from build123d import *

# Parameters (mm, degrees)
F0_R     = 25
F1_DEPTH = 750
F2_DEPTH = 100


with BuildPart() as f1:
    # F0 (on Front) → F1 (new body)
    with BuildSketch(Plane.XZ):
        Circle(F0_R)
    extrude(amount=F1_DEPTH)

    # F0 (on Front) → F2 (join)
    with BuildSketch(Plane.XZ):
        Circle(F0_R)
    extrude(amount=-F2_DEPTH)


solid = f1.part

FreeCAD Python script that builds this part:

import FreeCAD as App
import Part
import Sketcher
from FreeCAD import Vector

doc = App.newDocument("Part")
body = doc.addObject("PartDesign::Body", "Body")

# Sketch on XZ plane
sketch1 = body.newObject("Sketcher::SketchObject", "Sketch")
sketch1.AttachmentSupport = (doc.getObject("XZ_Plane"), [""])
sketch1.MapMode = "FlatFace"
sketch1.addGeometry(Part.Circle(Vector(0, 0, 0), Vector(0, 0, 1), 25), False)
sketch1.addConstraint([
    Sketcher.Constraint("Coincident", 0, 3, -1, 1),
    Sketcher.Constraint("Diameter", 0, 50.0),
])
pad1 = body.newObject("PartDesign::Pad", "Pad")
pad1.Profile = sketch1
pad1.Length = 750

# Sketch on XZ plane
sketch2 = body.newObject("Sketcher::SketchObject", "Sketch001")
sketch2.AttachmentSupport = (doc.getObject("XZ_Plane"), [""])
sketch2.MapMode = "FlatFace"
sketch2.addGeometry(Part.Circle(Vector(0, 0, 0), Vector(0, 0, 1), 25), False)
sketch2.addConstraint([
    Sketcher.Constraint("Coincident", 0, 3, -1, 1),
    Sketcher.Constraint("Diameter", 0, 50.0),
])
pad2 = body.newObject("PartDesign::Pad", "Pad001")
pad2.Profile = sketch2
pad2.Length = 100
pad2.Reversed = True

doc.recompute()
